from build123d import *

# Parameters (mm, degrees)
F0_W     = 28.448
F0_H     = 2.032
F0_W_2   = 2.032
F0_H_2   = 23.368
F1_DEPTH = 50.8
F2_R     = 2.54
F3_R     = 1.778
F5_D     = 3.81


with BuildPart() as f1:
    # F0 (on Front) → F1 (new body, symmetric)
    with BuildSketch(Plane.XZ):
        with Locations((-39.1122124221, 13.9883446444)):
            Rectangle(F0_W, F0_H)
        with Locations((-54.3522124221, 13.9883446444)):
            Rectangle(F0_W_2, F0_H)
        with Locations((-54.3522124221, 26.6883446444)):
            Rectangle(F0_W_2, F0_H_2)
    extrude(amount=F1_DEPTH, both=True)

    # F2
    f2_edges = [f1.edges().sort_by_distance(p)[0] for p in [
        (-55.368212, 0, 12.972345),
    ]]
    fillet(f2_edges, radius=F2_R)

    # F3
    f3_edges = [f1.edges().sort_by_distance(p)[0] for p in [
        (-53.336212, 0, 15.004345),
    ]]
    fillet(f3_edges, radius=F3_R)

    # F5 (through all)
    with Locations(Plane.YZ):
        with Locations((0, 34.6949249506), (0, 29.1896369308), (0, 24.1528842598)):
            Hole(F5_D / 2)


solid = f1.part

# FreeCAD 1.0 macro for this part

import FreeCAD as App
import Part
import Sketcher
from FreeCAD import Vector
Q = App.Units.Quantity


def edges_at(feature, points):
    """Names of the edges that pass closest to the given points."""
    edges = feature.Shape.Edges
    near = lambda p: min(range(len(edges)), key=lambda i: edges[i].distToShape(Part.Vertex(*p))[0])
    return sorted({f"Edge{near(p) + 1}" for p in points})


def add_polygon(sketch, points):
    """Adds a closed chain of lines whose ends are joined by coincident constraints."""
    first, n = sketch.GeometryCount, len(points)
    for a, b in zip(points, points[1:] + points[:1]):
        sketch.addGeometry(Part.LineSegment(App.Vector(*a, 0), App.Vector(*b, 0)), False)
    for i in range(n):
        sketch.addConstraint(Sketcher.Constraint("Coincident", first + i, 2, first + (i + 1) % n, 1))

doc = App.newDocument("Part")
body = doc.addObject("PartDesign::Body", "Body")

# Sketch on XZ plane
sketch1 = body.newObject("Sketcher::SketchObject", "Sketch")
sketch1.AttachmentSupport = (doc.getObject("XZ_Plane"), [""])
sketch1.MapMode = "FlatFace"
add_polygon(sketch1, [(-24.9, 13), (-24.9, 15), (-53.3, 15), (-53.3, 38.4), (-55.4, 38.4), (-55.4, 13)])  # lines 0-5
sketch1.addConstraint([
    Sketcher.Constraint("Vertical", 0),
    Sketcher.Constraint("Horizontal", 1),
    Sketcher.Constraint("Vertical", 2),
    Sketcher.Constraint("Horizontal", 3),
    Sketcher.Constraint("Vertical", 4),
    Sketcher.Constraint("Horizontal", 5),
    Sketcher.Constraint("Equal", 3, 0),
    Sketcher.Constraint("DistanceY", 4, 2, 4, 1, Q("1 in")),
    Sketcher.Constraint("DistanceX", 5, 1, 5, 2, Q("1.2 in")),
    Sketcher.Constraint("DistanceX", 1, 2, 1, 1, Q("1.12 in")),
    Sketcher.Constraint("DistanceX", 0, 2, -1, 1, Q("24.888212 mm")),
    Sketcher.Constraint("DistanceY", -1, 1, 0, 2, Q("15.004345 mm")),
])
pad1 = body.newObject("PartDesign::Pad", "Pad")
pad1.Profile = sketch1
pad1.Length = Q("4 in")
pad1.Midplane = True
doc.recompute()

fillet = body.newObject("PartDesign::Fillet", "Fillet")
fillet.Base = (pad1, edges_at(pad1, [(-55.368, 0, 12.972)]))
fillet.Radius = Q("0.1 in")
doc.recompute()

fillet2 = body.newObject("PartDesign::Fillet", "Fillet001")
fillet2.Base = (fillet, edges_at(fillet, [(-53.336, 0, 15.004)]))
fillet2.Radius = Q("0.07 in")

# Sketch on YZ plane
sketch2 = body.newObject("Sketcher::SketchObject", "Sketch001")
sketch2.AttachmentSupport = (doc.getObject("YZ_Plane"), [""])
sketch2.MapMode = "FlatFace"
sketch2.addGeometry([
    Part.Circle(Vector(0, 34.7, 0), Vector(0, 0, 1), 1.9),
    Part.Circle(Vector(0, 29.2, 0), Vector(0, 0, 1), 1.9),
    Part.Circle(Vector(0, 24.2, 0), Vector(0, 0, 1), 1.9),
], False)
sketch2.addConstraint([
    Sketcher.Constraint("Equal", 0, 1),
    Sketcher.Constraint("Equal", 1, 2),
    Sketcher.Constraint("PointOnObject", 0, 3, -2),
    Sketcher.Constraint("PointOnObject", 1, 3, -2),
    Sketcher.Constraint("PointOnObject", 2, 3, -2),
    Sketcher.Constraint("Diameter", 0, Q("0.15 in")),
    Sketcher.Constraint("DistanceY", 1, 3, 0, 3, Q("5.505288 mm")),
    Sketcher.Constraint("DistanceY", 2, 3, 0, 3, Q("10.542041 mm")),
    Sketcher.Constraint("DistanceY", -1, 1, 0, 3, Q("34.694925 mm")),
])
doc.recompute()
hole = body.newObject("PartDesign::Hole", "Hole")
hole.Profile = sketch2
hole.ThreadType = "None"
hole.Diameter = Q("0.15 in")
hole.DepthType = "ThroughAll"

doc.recompute()
